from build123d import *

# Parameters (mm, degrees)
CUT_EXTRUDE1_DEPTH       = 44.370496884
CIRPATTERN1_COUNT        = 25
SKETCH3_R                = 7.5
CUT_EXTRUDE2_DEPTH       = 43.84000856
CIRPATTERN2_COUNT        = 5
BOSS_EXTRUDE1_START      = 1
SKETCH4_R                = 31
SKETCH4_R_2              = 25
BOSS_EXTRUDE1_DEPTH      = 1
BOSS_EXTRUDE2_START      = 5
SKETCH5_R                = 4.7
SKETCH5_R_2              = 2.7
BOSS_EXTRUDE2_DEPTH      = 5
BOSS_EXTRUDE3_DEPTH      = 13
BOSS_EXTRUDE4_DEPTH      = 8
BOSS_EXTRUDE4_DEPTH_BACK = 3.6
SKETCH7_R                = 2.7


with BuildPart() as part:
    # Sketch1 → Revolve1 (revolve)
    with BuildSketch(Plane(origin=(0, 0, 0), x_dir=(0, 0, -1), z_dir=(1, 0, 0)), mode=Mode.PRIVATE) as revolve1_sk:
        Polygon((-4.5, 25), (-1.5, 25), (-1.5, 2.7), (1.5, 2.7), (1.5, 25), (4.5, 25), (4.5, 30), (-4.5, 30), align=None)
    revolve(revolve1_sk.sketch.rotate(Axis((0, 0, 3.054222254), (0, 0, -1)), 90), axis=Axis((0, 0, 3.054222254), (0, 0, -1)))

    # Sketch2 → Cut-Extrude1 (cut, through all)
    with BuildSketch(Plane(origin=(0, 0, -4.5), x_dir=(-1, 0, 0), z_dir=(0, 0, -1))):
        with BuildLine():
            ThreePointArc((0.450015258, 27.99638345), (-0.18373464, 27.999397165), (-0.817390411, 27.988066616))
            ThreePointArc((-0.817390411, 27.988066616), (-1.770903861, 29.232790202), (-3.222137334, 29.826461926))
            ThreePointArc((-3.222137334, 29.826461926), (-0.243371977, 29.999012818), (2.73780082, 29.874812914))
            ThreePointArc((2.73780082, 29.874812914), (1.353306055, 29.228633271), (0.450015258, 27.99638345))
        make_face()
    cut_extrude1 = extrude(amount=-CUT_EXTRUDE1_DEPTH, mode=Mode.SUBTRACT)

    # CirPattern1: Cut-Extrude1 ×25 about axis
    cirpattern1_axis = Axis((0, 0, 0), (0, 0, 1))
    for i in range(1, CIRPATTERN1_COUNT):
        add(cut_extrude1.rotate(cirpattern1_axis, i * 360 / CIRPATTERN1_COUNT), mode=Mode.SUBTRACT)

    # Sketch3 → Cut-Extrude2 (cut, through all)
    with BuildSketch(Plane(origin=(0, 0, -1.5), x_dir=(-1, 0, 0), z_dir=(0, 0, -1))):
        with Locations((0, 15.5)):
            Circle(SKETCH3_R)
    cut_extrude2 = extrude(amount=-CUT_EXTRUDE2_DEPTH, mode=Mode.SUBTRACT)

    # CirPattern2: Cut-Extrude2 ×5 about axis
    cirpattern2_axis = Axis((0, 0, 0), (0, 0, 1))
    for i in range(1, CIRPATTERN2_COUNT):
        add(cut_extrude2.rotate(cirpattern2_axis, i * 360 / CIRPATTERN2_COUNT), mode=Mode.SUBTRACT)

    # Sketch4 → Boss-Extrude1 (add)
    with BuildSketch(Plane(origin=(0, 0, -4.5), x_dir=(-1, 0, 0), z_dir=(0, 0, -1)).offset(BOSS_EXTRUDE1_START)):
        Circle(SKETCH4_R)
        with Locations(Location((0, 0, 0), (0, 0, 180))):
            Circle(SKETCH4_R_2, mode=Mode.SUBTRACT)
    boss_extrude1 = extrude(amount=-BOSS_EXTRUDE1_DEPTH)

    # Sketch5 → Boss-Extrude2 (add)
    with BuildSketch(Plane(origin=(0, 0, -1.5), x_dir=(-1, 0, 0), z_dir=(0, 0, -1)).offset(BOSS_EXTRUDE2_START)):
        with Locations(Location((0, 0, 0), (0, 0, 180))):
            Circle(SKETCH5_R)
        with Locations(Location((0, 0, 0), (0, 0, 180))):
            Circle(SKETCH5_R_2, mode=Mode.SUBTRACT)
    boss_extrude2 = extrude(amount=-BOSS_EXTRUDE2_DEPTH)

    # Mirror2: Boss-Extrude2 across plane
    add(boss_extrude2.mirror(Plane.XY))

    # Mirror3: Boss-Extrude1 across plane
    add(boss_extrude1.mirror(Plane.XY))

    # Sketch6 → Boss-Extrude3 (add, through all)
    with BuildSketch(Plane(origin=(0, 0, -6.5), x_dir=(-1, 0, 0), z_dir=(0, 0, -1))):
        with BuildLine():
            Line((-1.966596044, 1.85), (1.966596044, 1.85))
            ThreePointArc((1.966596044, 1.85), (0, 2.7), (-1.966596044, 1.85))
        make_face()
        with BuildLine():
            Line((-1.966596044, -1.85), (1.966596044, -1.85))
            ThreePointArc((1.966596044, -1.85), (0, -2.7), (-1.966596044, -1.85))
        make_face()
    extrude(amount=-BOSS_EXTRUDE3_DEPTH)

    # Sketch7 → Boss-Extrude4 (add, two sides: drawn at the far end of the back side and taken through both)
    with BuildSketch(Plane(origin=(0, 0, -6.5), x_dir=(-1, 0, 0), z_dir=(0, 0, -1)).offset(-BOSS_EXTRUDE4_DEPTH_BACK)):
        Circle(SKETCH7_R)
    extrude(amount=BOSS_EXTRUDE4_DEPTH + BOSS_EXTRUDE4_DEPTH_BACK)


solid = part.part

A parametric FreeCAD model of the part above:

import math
import FreeCAD as App
import Part
import Sketcher

doc = App.newDocument("Part")
params = doc.addObject("Spreadsheet::Sheet", "Params")
for row, (alias, value) in enumerate([
    ("sketch1_width", "5 mm"),
    ("sketch1_height", "3 mm"),
    ("sketch1_width2", "22.3 mm"),
    ("revolution_angle", "360 deg"),
    ("sketch2_radius", "27.999998 mm"),
    ("sketch2_radius2", "30 mm"),
    ("sketch2_radius3", "3 mm"),
    ("sketch3_diameter", "15 mm"),
    ("sketch4_diameter", "62 mm"),
    ("sketch4_diameter2", "50 mm"),
    ("pad1_length", "1 mm"),
    ("sketch5_diameter", "9.4 mm"),
    ("sketch5_diameter2", "5.4 mm"),
    ("pad2_length", "5 mm"),
    ("sketch6_radius", "2.7 mm"),
    ("pad3_length", "13 mm"),
    ("sketch7_diameter", "5.4 mm"),
    ("pad4_length", "8 mm"),
    ("pad4_length2", "3.6 mm"),
], start=1):
    params.set(f"A{row}", alias)
    params.set(f"B{row}", "=" + value)
    params.setAlias(f"B{row}", alias)

body = doc.addObject("PartDesign::Body", "Body")

sketch1 = body.newObject("Sketcher::SketchObject", "Sketch")
sketch1.AttachmentSupport = (doc.getObject("YZ_Plane"), [""])
sketch1.MapMode = "FlatFace"
sketch1.addGeometry([
    Part.LineSegment(App.Vector(25, 4.5, 0), App.Vector(25, 1.5, 0)),
    Part.LineSegment(App.Vector(25, 1.5, 0), App.Vector(2.7, 1.5, 0)),
    Part.LineSegment(App.Vector(2.7, 1.5, 0), App.Vector(2.7, -1.5, 0)),
    Part.LineSegment(App.Vector(2.7, -1.5, 0), App.Vector(25, -1.5, 0)),
    Part.LineSegment(App.Vector(25, -1.5, 0), App.Vector(25, -4.5, 0)),
    Part.LineSegment(App.Vector(25, -4.5, 0), App.Vector(30, -4.5, 0)),
    Part.LineSegment(App.Vector(30, -4.5, 0), App.Vector(30, 4.5, 0)),
    Part.LineSegment(App.Vector(30, 4.5, 0), App.Vector(25, 4.5, 0)),
], False)
sketch1.addConstraint([
    Sketcher.Constraint("Coincident", 0, 2, 1, 1),
    Sketcher.Constraint("Coincident", 1, 2, 2, 1),
    Sketcher.Constraint("Coincident", 2, 2, 3, 1),
    Sketcher.Constraint("Coincident", 3, 2, 4, 1),
    Sketcher.Constraint("Coincident", 4, 2, 5, 1),
    Sketcher.Constraint("Coincident", 5, 2, 6, 1),
    Sketcher.Constraint("Coincident", 6, 2, 7, 1),
    Sketcher.Constraint("Coincident", 7, 2, 0, 1),
    Sketcher.Constraint("Vertical", 0),
    Sketcher.Constraint("Horizontal", 1),
    Sketcher.Constraint("Vertical", 2),
    Sketcher.Constraint("Horizontal", 3),
    Sketcher.Constraint("Vertical", 4),
    Sketcher.Constraint("Horizontal", 5),
    Sketcher.Constraint("Vertical", 6),
    Sketcher.Constraint("Horizontal", 7),
    Sketcher.Constraint("Symmetric", 0, 2, 3, 2, -1),
    Sketcher.Constraint("Equal", 0, 2),
    Sketcher.Constraint("Equal", 2, 4),
    Sketcher.Constraint("DistanceX", 5, 1, 5, 2, 5.0),
    Sketcher.Constraint("DistanceY", 0, 2, 0, 1, 3.0),
    Sketcher.Constraint("DistanceX", 1, 2, 1, 1, 22.3),
    Sketcher.Constraint("DistanceX", -1, 1, 0, 2, 25.0),
])
sketch1.setExpression("Constraints[19]", "Params.sketch1_width")
sketch1.setExpression("Constraints[20]", "Params.sketch1_height")
sketch1.setExpression("Constraints[21]", "Params.sketch1_width2")
revolution = body.newObject("PartDesign::Revolution", "Revolution")
revolution.Profile = sketch1
revolution.ReferenceAxis = (sketch1, ["V_Axis"])
revolution.setExpression("Angle", "Params.revolution_angle")

sketch2 = body.newObject("Sketcher::SketchObject", "Sketch001")
sketch2.AttachmentSupport = (doc.getObject("XY_Plane"), [""])
sketch2.MapMode = "FlatFace"
sketch2.AttachmentOffset = App.Placement(App.Vector(0, 0, -4.5), App.Rotation())
sketch2.addGeometry([
    Part.ArcOfCircle(Part.Circle(App.Vector(0, 0, 0), App.Vector(0, 0, 1), 28), math.radians(88.33), math.radians(90.92)),
    Part.ArcOfCircle(Part.Circle(App.Vector(-3.3, 26.8, 0), App.Vector(0, 0, 1), 3.1), math.radians(22), math.radians(79)),
    Part.ArcOfCircle(Part.Circle(App.Vector(0, 0, 0), App.Vector(0, 0, 1), 30), math.radians(83.83), math.radians(95.24)),
    Part.ArcOfCircle(Part.Circle(App.Vector(3.6, 26.8, 0), App.Vector(0, 0, 1), 3), math.radians(97), math.radians(158)),
], False)
sketch2.addConstraint([
    Sketcher.Constraint("Coincident", 0, 2, 1, 1),
    Sketcher.Constraint("Coincident", 1, 2, 2, 2),
    Sketcher.Constraint("Coincident", 2, 1, 3, 1),
    Sketcher.Constraint("Coincident", 3, 2, 0, 1),
    Sketcher.Constraint("Coincident", 0, 3, -1, 1),
    Sketcher.Constraint("Coincident", 2, 3, -1, 1),
    Sketcher.Constraint("Horizontal", 1, 3, 3, 3),
    Sketcher.Constraint("Radius", 0, 27.999998),
    Sketcher.Constraint("Radius", 2, 30.0),
    Sketcher.Constraint("Radius", 3, 3.0),
    Sketcher.Constraint("Radius", 1, 3.078386),
    Sketcher.Constraint("DistanceY", 3, 3, 2, 1, 2.976998),
    Sketcher.Constraint("DistanceX", 1, 2, -1, 1, 2.737801),
    Sketcher.Constraint("DistanceY", -1, 1, 2, 1, 29.826462),
])
sketch2.setExpression("Constraints[7]", "Params.sketch2_radius")
sketch2.setExpression("Constraints[8]", "Params.sketch2_radius2")
sketch2.setExpression("Constraints[9]", "Params.sketch2_radius3")
pocket1 = body.newObject("PartDesign::Pocket", "Pocket")
pocket1.Profile = sketch2
pocket1.Type = "ThroughAll"
pocket1.Reversed = True
doc.recompute()

polarpattern = body.newObject("PartDesign::PolarPattern", "PolarPattern")
polarpattern.Originals = [pocket1]
polarpattern.Axis = (doc.getObject("Z_Axis"), [""])
polarpattern.Angle = 360
polarpattern.Occurrences = 25
body.Tip = polarpattern

sketch3 = body.newObject("Sketcher::SketchObject", "Sketch002")
sketch3.AttachmentSupport = (doc.getObject("XY_Plane"), [""])
sketch3.MapMode = "FlatFace"
sketch3.AttachmentOffset = App.Placement(App.Vector(0, 0, -1.5), App.Rotation())
sketch3.addGeometry(Part.Circle(App.Vector(0, 16, 0), App.Vector(0, 0, 1), 8), False)
sketch3.addConstraint([
    Sketcher.Constraint("PointOnObject", 0, 3, -2),
    Sketcher.Constraint("Diameter", 0, 15.0),
    Sketcher.Constraint("DistanceY", -1, 1, 0, 3, 15.5),
])
sketch3.setExpression("Constraints[1]", "Params.sketch3_diameter")
pocket2 = body.newObject("PartDesign::Pocket", "Pocket001")
pocket2.Profile = sketch3
pocket2.Type = "ThroughAll"
pocket2.Reversed = True
doc.recompute()

polarpattern2 = body.newObject("PartDesign::PolarPattern", "PolarPattern001")
polarpattern2.Originals = [pocket2]
polarpattern2.Axis = (doc.getObject("Z_Axis"), [""])
polarpattern2.Angle = 360
polarpattern2.Occurrences = 5
body.Tip = polarpattern2

sketch4 = body.newObject("Sketcher::SketchObject", "Sketch003")
sketch4.AttachmentSupport = (doc.getObject("XY_Plane"), [""])
sketch4.MapMode = "FlatFace"
sketch4.AttachmentOffset = App.Placement(App.Vector(0, 0, -5.5), App.Rotation())
sketch4.addGeometry([
    Part.Circle(App.Vector(0, 0, 0), App.Vector(0, 0, 1), 31),
    Part.Circle(App.Vector(0, 0, 0), App.Vector(0, 0, 1), 25),
], False)
sketch4.addConstraint([
    Sketcher.Constraint("Coincident", 0, 3, -1, 1),
    Sketcher.Constraint("Coincident", 1, 3, -1, 1),
    Sketcher.Constraint("Diameter", 0, 62.0),
    Sketcher.Constraint("Diameter", 1, 50.0),
])
sketch4.setExpression("Constraints[2]", "Params.sketch4_diameter")
sketch4.setExpression("Constraints[3]", "Params.sketch4_diameter2")
pad1 = body.newObject("PartDesign::Pad", "Pad")
pad1.Profile = sketch4
pad1.setExpression("Length", "Params.pad1_length")

sketch5 = body.newObject("Sketcher::SketchObject", "Sketch004")
sketch5.AttachmentSupport = (doc.getObject("XY_Plane"), [""])
sketch5.MapMode = "FlatFace"
sketch5.AttachmentOffset = App.Placement(App.Vector(0, 0, -6.5), App.Rotation())
sketch5.addGeometry([
    Part.Circle(App.Vector(0, 0, 0), App.Vector(0, 0, 1), 4.7),
    Part.Circle(App.Vector(0, 0, 0), App.Vector(0, 0, 1), 2.7),
], False)
sketch5.addConstraint([
    Sketcher.Constraint("Coincident", 0, 3, -1, 1),
    Sketcher.Constraint("Coincident", 1, 3, -1, 1),
    Sketcher.Constraint("Diameter", 0, 9.4),
    Sketcher.Constraint("Diameter", 1, 5.4),
])
sketch5.setExpression("Constraints[2]", "Params.sketch5_diameter")
sketch5.setExpression("Constraints[3]", "Params.sketch5_diameter2")
pad2 = body.newObject("PartDesign::Pad", "Pad001")
pad2.Profile = sketch5
pad2.setExpression("Length", "Params.pad2_length")
doc.recompute()

mirrored = body.newObject("PartDesign::Mirrored", "Mirrored")
mirrored.Originals = [pad2]
mirrored.MirrorPlane = (doc.getObject("XY_Plane"), [""])
body.Tip = mirrored
doc.recompute()

mirrored2 = body.newObject("PartDesign::Mirrored", "Mirrored001")
mirrored2.Originals = [pad1]
mirrored2.MirrorPlane = (doc.getObject("XY_Plane"), [""])
body.Tip = mirrored2

sketch6 = body.newObject("Sketcher::SketchObject", "Sketch005")
sketch6.AttachmentSupport = (doc.getObject("XY_Plane"), [""])
sketch6.MapMode = "FlatFace"
sketch6.AttachmentOffset = App.Placement(App.Vector(0, 0, -6.5), App.Rotation())
sketch6.addGeometry([
    Part.LineSegment(App.Vector(2, 1.9, 0), App.Vector(-2, 1.9, 0)),
    Part.ArcOfCircle(Part.Circle(App.Vector(0, 0, 0), App.Vector(0, 0, 1), 2.7), math.radians(43), math.radians(137)),
    Part.LineSegment(App.Vector(-2, -1.9, 0), App.Vector(2, -1.9, 0)),
    Part.ArcOfCircle(Part.Circle(App.Vector(0, 0, 0), App.Vector(0, 0, 1), 2.7), math.radians(-137), math.radians(-43)),
], False)
sketch6.addConstraint([
    Sketcher.Constraint("Coincident", 0, 1, 1, 1),
    Sketcher.Constraint("Coincident", 1, 2, 0, 2),
    Sketcher.Constraint("Coincident", 2, 1, 3, 1),
    Sketcher.Constraint("Coincident", 3, 2, 2, 2),
    Sketcher.Constraint("Horizontal", 0),
    Sketcher.Constraint("Horizontal", 2),
    Sketcher.Constraint("Coincident", 1, 3, -1, 1),
    Sketcher.Constraint("Coincident", 3, 3, -1, 1),
    Sketcher.Constraint("Equal", 1, 3),
    Sketcher.Constraint("Vertical", 1, 2, 2, 1),
    Sketcher.Constraint("Radius", 1, 2.7),
    Sketcher.Constraint("DistanceY", 2, 1, 1, 2, 3.7),
])
sketch6.setExpression("Constraints[10]", "Params.sketch6_radius")
pad3 = body.newObject("PartDesign::Pad", "Pad002")
pad3.Profile = sketch6
pad3.setExpression("Length", "Params.pad3_length")

sketch7 = body.newObject("Sketcher::SketchObject", "Sketch006")
sketch7.AttachmentSupport = (doc.getObject("XY_Plane"), [""])
sketch7.MapMode = "FlatFace"
sketch7.AttachmentOffset = App.Placement(App.Vector(0, 0, -6.5), App.Rotation())
sketch7.addGeometry(Part.Circle(App.Vector(0, 0, 0), App.Vector(0, 0, 1), 2.7), False)
sketch7.addConstraint([
    Sketcher.Constraint("Coincident", 0, 3, -1, 1),
    Sketcher.Constraint("Diameter", 0, 5.4),
])
sketch7.setExpression("Constraints[1]", "Params.sketch7_diameter")
pad4 = body.newObject("PartDesign::Pad", "Pad003")
pad4.Profile = sketch7
pad4.Type = "TwoLengths"
pad4.setExpression("Length", "Params.pad4_length")
pad4.setExpression("Length2", "Params.pad4_length2")
pad4.Reversed = True

doc.recompute()
